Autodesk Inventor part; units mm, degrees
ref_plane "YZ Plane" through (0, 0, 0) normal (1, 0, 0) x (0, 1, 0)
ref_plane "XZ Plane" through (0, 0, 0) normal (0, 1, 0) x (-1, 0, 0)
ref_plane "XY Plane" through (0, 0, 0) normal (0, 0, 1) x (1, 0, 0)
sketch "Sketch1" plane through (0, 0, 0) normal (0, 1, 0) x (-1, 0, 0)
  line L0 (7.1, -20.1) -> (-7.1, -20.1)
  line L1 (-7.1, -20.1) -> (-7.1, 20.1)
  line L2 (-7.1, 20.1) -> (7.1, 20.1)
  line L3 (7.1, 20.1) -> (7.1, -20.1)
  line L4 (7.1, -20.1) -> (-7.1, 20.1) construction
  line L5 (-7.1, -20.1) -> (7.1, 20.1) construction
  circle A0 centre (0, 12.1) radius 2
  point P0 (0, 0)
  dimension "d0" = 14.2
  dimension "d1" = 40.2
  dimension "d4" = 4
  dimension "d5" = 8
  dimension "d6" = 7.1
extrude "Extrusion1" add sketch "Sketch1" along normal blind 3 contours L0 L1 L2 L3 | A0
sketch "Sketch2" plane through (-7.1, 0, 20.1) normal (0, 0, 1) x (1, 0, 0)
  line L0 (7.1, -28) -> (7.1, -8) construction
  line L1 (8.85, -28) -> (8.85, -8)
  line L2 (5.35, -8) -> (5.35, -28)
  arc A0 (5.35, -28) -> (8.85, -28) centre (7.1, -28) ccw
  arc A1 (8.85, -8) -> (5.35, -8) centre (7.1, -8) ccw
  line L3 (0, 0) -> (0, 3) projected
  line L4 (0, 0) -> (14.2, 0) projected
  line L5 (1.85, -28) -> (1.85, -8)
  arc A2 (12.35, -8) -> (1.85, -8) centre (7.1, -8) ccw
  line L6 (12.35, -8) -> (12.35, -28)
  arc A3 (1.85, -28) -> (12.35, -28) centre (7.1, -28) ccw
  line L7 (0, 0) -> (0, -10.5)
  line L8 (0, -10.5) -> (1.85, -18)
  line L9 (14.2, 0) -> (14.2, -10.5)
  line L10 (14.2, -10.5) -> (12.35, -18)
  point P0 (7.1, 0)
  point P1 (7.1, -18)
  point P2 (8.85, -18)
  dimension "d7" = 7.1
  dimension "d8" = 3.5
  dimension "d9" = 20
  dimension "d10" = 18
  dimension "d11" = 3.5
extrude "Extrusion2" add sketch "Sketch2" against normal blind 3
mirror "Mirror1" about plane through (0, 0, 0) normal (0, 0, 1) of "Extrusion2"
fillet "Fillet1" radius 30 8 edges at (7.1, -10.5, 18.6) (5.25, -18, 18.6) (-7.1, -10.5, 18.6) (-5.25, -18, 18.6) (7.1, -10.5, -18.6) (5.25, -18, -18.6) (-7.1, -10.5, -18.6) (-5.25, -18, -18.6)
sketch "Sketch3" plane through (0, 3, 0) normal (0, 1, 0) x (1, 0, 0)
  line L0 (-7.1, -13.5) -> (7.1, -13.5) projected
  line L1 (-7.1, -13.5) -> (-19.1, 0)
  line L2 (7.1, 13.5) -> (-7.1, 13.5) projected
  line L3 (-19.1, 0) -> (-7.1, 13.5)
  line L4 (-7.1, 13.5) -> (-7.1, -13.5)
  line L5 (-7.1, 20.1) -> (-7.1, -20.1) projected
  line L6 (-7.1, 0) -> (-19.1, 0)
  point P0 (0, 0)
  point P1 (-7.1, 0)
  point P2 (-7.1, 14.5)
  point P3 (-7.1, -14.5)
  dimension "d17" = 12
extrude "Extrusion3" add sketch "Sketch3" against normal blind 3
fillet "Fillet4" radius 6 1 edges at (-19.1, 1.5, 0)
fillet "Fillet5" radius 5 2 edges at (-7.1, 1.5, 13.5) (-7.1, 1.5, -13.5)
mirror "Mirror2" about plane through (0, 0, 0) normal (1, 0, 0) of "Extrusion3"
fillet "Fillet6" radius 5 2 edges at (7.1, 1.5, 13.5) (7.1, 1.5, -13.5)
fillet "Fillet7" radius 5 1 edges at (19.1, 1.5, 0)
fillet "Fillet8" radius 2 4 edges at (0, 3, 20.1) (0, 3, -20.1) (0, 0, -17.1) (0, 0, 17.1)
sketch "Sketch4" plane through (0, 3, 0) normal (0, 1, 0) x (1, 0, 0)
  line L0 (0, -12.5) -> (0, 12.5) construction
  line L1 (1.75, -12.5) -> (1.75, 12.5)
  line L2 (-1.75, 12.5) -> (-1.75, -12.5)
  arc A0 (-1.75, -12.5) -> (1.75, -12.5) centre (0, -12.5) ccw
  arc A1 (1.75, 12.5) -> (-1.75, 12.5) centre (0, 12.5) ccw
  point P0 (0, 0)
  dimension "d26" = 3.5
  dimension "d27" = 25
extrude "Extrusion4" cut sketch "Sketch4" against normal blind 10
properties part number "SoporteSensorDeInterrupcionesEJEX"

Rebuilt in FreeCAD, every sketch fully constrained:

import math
import FreeCAD as App
import Part
import Sketcher
from FreeCAD import Vector
Q = App.Units.Quantity


def edges_at(feature, points):
    """Names of the edges that pass closest to the given points."""
    edges = feature.Shape.Edges
    near = lambda p: min(range(len(edges)), key=lambda i: edges[i].distToShape(Part.Vertex(*p))[0])
    return sorted({f"Edge{near(p) + 1}" for p in points})

doc = App.newDocument("Part")
body = doc.addObject("PartDesign::Body", "Body")

# Sketch on XZ plane
sketch1 = body.newObject("Sketcher::SketchObject", "Sketch")
sketch1.AttachmentSupport = (doc.getObject("XZ_Plane"), [""])
sketch1.MapMode = "FlatFace"
sketch1.addGeometry(Part.LineSegment(Vector(7, -20, 0), Vector(-7, -20, 0)), False)
sketch1.addGeometry(Part.LineSegment(Vector(-7, -20, 0), Vector(-7, 20, 0)), False)
sketch1.addGeometry(Part.LineSegment(Vector(-7, 20, 0), Vector(7, 20, 0)), False)
sketch1.addGeometry(Part.LineSegment(Vector(7, 20, 0), Vector(7, -20, 0)), False)
sketch1.addConstraint(Sketcher.Constraint("Coincident", 0, 2, 1, 1))
sketch1.addConstraint(Sketcher.Constraint("Coincident", 1, 2, 2, 1))
sketch1.addConstraint(Sketcher.Constraint("Coincident", 2, 2, 3, 1))
sketch1.addConstraint(Sketcher.Constraint("Coincident", 3, 2, 0, 1))
sketch1.addConstraint(Sketcher.Constraint("Horizontal", 0))
sketch1.addConstraint(Sketcher.Constraint("Vertical", 1))
sketch1.addConstraint(Sketcher.Constraint("Horizontal", 2))
sketch1.addConstraint(Sketcher.Constraint("Vertical", 3))
sketch1.addConstraint(Sketcher.Constraint("Symmetric", 0, 2, 2, 2, -1, 1))
sketch1.addConstraint(Sketcher.Constraint("DistanceX", 0, 2, 0, 1, Q("14.2 mm")))
sketch1.addConstraint(Sketcher.Constraint("DistanceY", 1, 1, 1, 2, Q("40.2 mm")))
pad1 = body.newObject("PartDesign::Pad", "Pad")
pad1.Profile = sketch1
pad1.Length = 3
pad1.Reversed = True

# Sketch on XY plane
sketch2 = body.newObject("Sketcher::SketchObject", "Sketch001")
sketch2.AttachmentSupport = (doc.getObject("XY_Plane"), [""])
sketch2.MapMode = "FlatFace"
sketch2.AttachmentOffset = App.Placement(Vector(0, 0, 20.1), App.Rotation())
sketch2.addGeometry(Part.LineSegment(Vector(7.1, 0, 0), Vector(-7.1, 0, 0)), False)
sketch2.addGeometry(Part.LineSegment(Vector(-7.1, 0, 0), Vector(-7.1, -10.5, 0)), False)
sketch2.addGeometry(Part.LineSegment(Vector(-7.1, -10.5, 0), Vector(-5.2, -18, 0)), False)
sketch2.addGeometry(Part.LineSegment(Vector(-5.2, -18, 0), Vector(-5.2, -28, 0)), False)
sketch2.addGeometry(Part.ArcOfCircle(Part.Circle(Vector(0, -28, 0), Vector(0, 0, 1), 5.2), math.radians(180), math.radians(360)), False)
sketch2.addGeometry(Part.LineSegment(Vector(5.2, -28, 0), Vector(5.2, -18, 0)), False)
sketch2.addGeometry(Part.LineSegment(Vector(5.2, -18, 0), Vector(7.1, -10.5, 0)), False)
sketch2.addGeometry(Part.LineSegment(Vector(7.1, -10.5, 0), Vector(7.1, 0, 0)), False)
sketch2.addGeometry(Part.ArcOfCircle(Part.Circle(Vector(0, -8, 0), Vector(0, 0, 1), 1.8), math.radians(0), math.radians(180)), False)
sketch2.addGeometry(Part.LineSegment(Vector(1.8, -8, 0), Vector(1.8, -28, 0)), False)
sketch2.addGeometry(Part.ArcOfCircle(Part.Circle(Vector(0, -28, 0), Vector(0, 0, 1), 1.8), math.radians(180), math.radians(360)), False)
sketch2.addGeometry(Part.LineSegment(Vector(-1.8, -28, 0), Vector(-1.8, -8, 0)), False)
sketch2.addConstraint(Sketcher.Constraint("Coincident", 0, 2, 1, 1))
sketch2.addConstraint(Sketcher.Constraint("Coincident", 1, 2, 2, 1))
sketch2.addConstraint(Sketcher.Constraint("Coincident", 2, 2, 3, 1))
sketch2.addConstraint(Sketcher.Constraint("Tangent", 3, 2, 4, 1))
sketch2.addConstraint(Sketcher.Constraint("Tangent", 4, 2, 5, 1))
sketch2.addConstraint(Sketcher.Constraint("Coincident", 5, 2, 6, 1))
sketch2.addConstraint(Sketcher.Constraint("Coincident", 6, 2, 7, 1))
sketch2.addConstraint(Sketcher.Constraint("Coincident", 7, 2, 0, 1))
sketch2.addConstraint(Sketcher.Constraint("Tangent", 8, 1, 9, 1))
sketch2.addConstraint(Sketcher.Constraint("Tangent", 9, 2, 10, 2))
sketch2.addConstraint(Sketcher.Constraint("Tangent", 10, 1, 11, 1))
sketch2.addConstraint(Sketcher.Constraint("Tangent", 11, 2, 8, 2))
sketch2.addConstraint(Sketcher.Constraint("Horizontal", 0))
sketch2.addConstraint(Sketcher.Constraint("Vertical", 1))
sketch2.addConstraint(Sketcher.Constraint("Vertical", 3))
sketch2.addConstraint(Sketcher.Constraint("Vertical", 5))
sketch2.addConstraint(Sketcher.Constraint("Vertical", 7))
sketch2.addConstraint(Sketcher.Constraint("Vertical", 9))
sketch2.addConstraint(Sketcher.Constraint("Vertical", 11))
sketch2.addConstraint(Sketcher.Constraint("Coincident", 10, 3, 4, 3))
sketch2.addConstraint(Sketcher.Constraint("Symmetric", 0, 2, 7, 2, -1, 1))
sketch2.addConstraint(Sketcher.Constraint("Symmetric", 2, 2, 5, 2, -2))
sketch2.addConstraint(Sketcher.Constraint("Horizontal", 1, 2, 6, 2))
sketch2.addConstraint(Sketcher.Constraint("DistanceY", 9, 2, 9, 1, Q("20 mm")))
sketch2.addConstraint(Sketcher.Constraint("Radius", 8, Q("1.75 mm")))
sketch2.addConstraint(Sketcher.Constraint("DistanceY", 2, 2, -1, 1, Q("18 mm")))
sketch2.addConstraint(Sketcher.Constraint("DistanceX", 0, 2, -1, 1, Q("7.1 mm")))
sketch2.addConstraint(Sketcher.Constraint("DistanceX", 8, 1, 5, 2, Q("3.5 mm")))
sketch2.addConstraint(Sketcher.Constraint("DistanceY", 3, 2, 3, 1, Q("10 mm")))
sketch2.addConstraint(Sketcher.Constraint("DistanceY", 1, 2, 1, 1, Q("10.5 mm")))
pad2 = body.newObject("PartDesign::Pad", "Pad001")
pad2.Profile = sketch2
pad2.Length = 3
pad2.Reversed = True
doc.recompute()

mirrored = body.newObject("PartDesign::Mirrored", "Mirrored")
mirrored.Originals = [pad2]
mirrored.MirrorPlane = (doc.getObject("XY_Plane"), [""])
body.Tip = mirrored
doc.recompute()

fillet = body.newObject("PartDesign::Fillet", "Fillet")
fillet.Base = (mirrored, edges_at(mirrored, [
    (7.1, -10.5, 18.6),
    (5.25, -18, 18.6),
    (-7.1, -10.5, 18.6),
    (-5.25, -18, 18.6),
    (7.1, -10.5, -18.6),
    (5.25, -18, -18.6),
    (-7.1, -10.5, -18.6),
    (-5.25, -18, -18.6),
]))
fillet.Radius = 30

# Sketch on XZ plane
sketch3 = body.newObject("Sketcher::SketchObject", "Sketch002")
sketch3.AttachmentSupport = (doc.getObject("XZ_Plane"), [""])
sketch3.MapMode = "FlatFace"
sketch3.AttachmentOffset = App.Placement(Vector(0, 0, -3), App.Rotation())
sketch3.addGeometry(Part.LineSegment(Vector(-19, 0, 0), Vector(-7, 14, 0)), False)
sketch3.addGeometry(Part.LineSegment(Vector(-7, 14, 0), Vector(-7, -14, 0)), False)
sketch3.addGeometry(Part.LineSegment(Vector(-7, -14, 0), Vector(-19, 0, 0)), False)
sketch3.addConstraint(Sketcher.Constraint("Coincident", 0, 2, 1, 1))
sketch3.addConstraint(Sketcher.Constraint("Coincident", 1, 2, 2, 1))
sketch3.addConstraint(Sketcher.Constraint("Coincident", 2, 2, 0, 1))
sketch3.addConstraint(Sketcher.Constraint("Vertical", 1))
sketch3.addConstraint(Sketcher.Constraint("PointOnObject", 2, 2, -1))
sketch3.addConstraint(Sketcher.Constraint("Equal", 0, 2))
sketch3.addConstraint(Sketcher.Constraint("DistanceX", 2, 2, 0, 2, Q("12 mm")))
sketch3.addConstraint(Sketcher.Constraint("DistanceY", 1, 2, 1, 1, Q("27 mm")))
sketch3.addConstraint(Sketcher.Constraint("DistanceX", 0, 2, -1, 1, Q("7.1 mm")))
pad3 = body.newObject("PartDesign::Pad", "Pad002")
pad3.Profile = sketch3
pad3.Length = 3
doc.recompute()

fillet2 = body.newObject("PartDesign::Fillet", "Fillet001")
fillet2.Base = (pad3, edges_at(pad3, [(-19.1, 1.5, 0)]))
fillet2.Radius = 6
doc.recompute()

fillet3 = body.newObject("PartDesign::Fillet", "Fillet002")
fillet3.Base = (fillet2, edges_at(fillet2, [(-7.1, 1.5, 13.5), (-7.1, 1.5, -13.5)]))
fillet3.Radius = 5
doc.recompute()

mirrored2 = body.newObject("PartDesign::Mirrored", "Mirrored001")
mirrored2.Originals = [pad3]
mirrored2.MirrorPlane = (doc.getObject("YZ_Plane"), [""])
body.Tip = mirrored2
doc.recompute()

fillet4 = body.newObject("PartDesign::Fillet", "Fillet003")
fillet4.Base = (mirrored2, edges_at(mirrored2, [(7.1, 1.5, 13.5), (7.1, 1.5, -13.5)]))
fillet4.Radius = 5
doc.recompute()

fillet5 = body.newObject("PartDesign::Fillet", "Fillet004")
fillet5.Base = (fillet4, edges_at(fillet4, [(19.1, 1.5, 0)]))
fillet5.Radius = 5
doc.recompute()

fillet6 = body.newObject("PartDesign::Fillet", "Fillet005")
fillet6.Base = (fillet5, edges_at(fillet5, [
    (0, 3, 20.1),
    (0, 3, -20.1),
    (0, 0, -17.1),
    (0, 0, 17.1),
]))
fillet6.Radius = 2

# Sketch on XZ plane
sketch4 = body.newObject("Sketcher::SketchObject", "Sketch003")
sketch4.AttachmentSupport = (doc.getObject("XZ_Plane"), [""])
sketch4.MapMode = "FlatFace"
sketch4.AttachmentOffset = App.Placement(Vector(0, 0, -3), App.Rotation())
sketch4.addGeometry(Part.ArcOfCircle(Part.Circle(Vector(0, 12.5, 0), Vector(0, 0, 1), 1.8), math.radians(0), math.radians(180)), False)
sketch4.addGeometry(Part.LineSegment(Vector(1.8, 12.5, 0), Vector(1.8, -12.5, 0)), False)
sketch4.addGeometry(Part.ArcOfCircle(Part.Circle(Vector(0, -12.5, 0), Vector(0, 0, 1), 1.8), math.radians(180), math.radians(360)), False)
sketch4.addGeometry(Part.LineSegment(Vector(-1.8, -12.5, 0), Vector(-1.8, 12.5, 0)), False)
sketch4.addConstraint(Sketcher.Constraint("Tangent", 0, 1, 1, 1))
sketch4.addConstraint(Sketcher.Constraint("Tangent", 1, 2, 2, 2))
sketch4.addConstraint(Sketcher.Constraint("Tangent", 2, 1, 3, 1))
sketch4.addConstraint(Sketcher.Constraint("Tangent", 3, 2, 0, 2))
sketch4.addConstraint(Sketcher.Constraint("Vertical", 1))
sketch4.addConstraint(Sketcher.Constraint("Vertical", 3))
sketch4.addConstraint(Sketcher.Constraint("Symmetric", 0, 3, 2, 3, -1, 1))
sketch4.addConstraint(Sketcher.Constraint("DistanceY", 1, 2, 1, 1, Q("25 mm")))
sketch4.addConstraint(Sketcher.Constraint("Radius", 0, Q("1.75 mm")))
pocket1 = body.newObject("PartDesign::Pocket", "Pocket")
pocket1.Profile = sketch4
pocket1.Length = 10
pocket1.Reversed = True

doc.recompute()
